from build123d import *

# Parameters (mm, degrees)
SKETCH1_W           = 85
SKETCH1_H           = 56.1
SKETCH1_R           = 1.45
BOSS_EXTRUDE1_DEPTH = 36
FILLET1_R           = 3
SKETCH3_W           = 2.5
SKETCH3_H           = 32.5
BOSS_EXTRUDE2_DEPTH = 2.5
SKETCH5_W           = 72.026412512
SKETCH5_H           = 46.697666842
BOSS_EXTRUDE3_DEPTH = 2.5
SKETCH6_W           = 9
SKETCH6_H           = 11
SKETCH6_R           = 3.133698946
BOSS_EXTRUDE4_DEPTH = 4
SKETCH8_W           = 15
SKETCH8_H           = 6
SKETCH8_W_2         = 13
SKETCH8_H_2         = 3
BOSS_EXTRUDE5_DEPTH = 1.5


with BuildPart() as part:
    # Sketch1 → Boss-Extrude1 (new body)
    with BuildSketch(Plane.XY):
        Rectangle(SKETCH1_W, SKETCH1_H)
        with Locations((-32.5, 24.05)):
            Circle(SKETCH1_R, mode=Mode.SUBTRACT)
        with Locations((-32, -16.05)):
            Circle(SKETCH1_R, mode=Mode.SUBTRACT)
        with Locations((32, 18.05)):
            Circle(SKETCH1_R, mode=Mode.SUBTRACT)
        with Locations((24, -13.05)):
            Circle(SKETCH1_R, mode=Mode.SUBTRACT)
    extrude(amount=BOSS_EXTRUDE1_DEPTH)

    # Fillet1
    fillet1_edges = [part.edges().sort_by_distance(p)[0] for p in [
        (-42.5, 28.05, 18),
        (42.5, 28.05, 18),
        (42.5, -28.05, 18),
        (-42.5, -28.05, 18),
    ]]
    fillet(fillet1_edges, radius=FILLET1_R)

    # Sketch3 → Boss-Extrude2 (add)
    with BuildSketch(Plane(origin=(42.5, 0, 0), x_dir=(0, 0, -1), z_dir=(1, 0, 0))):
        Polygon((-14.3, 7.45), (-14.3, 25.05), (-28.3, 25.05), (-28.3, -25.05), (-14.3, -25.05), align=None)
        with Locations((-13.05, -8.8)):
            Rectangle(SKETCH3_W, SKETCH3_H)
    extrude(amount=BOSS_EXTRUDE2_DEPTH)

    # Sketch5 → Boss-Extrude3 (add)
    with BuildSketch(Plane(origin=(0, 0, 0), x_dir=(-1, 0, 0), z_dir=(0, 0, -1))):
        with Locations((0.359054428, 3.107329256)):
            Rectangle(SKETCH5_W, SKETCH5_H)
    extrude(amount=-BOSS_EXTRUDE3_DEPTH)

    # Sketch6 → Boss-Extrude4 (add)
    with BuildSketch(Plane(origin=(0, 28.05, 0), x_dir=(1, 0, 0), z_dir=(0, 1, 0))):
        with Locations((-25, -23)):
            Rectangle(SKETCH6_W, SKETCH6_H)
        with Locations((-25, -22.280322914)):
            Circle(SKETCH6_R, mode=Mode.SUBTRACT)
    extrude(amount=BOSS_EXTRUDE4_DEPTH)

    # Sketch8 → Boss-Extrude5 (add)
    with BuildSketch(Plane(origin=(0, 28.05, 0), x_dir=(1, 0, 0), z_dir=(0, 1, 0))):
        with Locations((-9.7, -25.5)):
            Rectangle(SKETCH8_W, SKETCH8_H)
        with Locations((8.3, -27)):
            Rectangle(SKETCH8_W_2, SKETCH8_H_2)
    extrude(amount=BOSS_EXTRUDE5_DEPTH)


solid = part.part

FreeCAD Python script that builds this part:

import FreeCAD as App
import Part
import Sketcher
from FreeCAD import Vector
Q = App.Units.Quantity


def edges_at(feature, points):
    """Names of the edges that pass closest to the given points."""
    edges = feature.Shape.Edges
    near = lambda p: min(range(len(edges)), key=lambda i: edges[i].distToShape(Part.Vertex(*p))[0])
    return sorted({f"Edge{near(p) + 1}" for p in points})

doc = App.newDocument("Part")
body = doc.addObject("PartDesign::Body", "Body")

# Sketch on XY plane
sketch1 = body.newObject("Sketcher::SketchObject", "Sketch")
sketch1.AttachmentSupport = (doc.getObject("XY_Plane"), [""])
sketch1.MapMode = "FlatFace"
sketch1.addGeometry([
    Part.LineSegment(Vector(-42.5, 28.05, 0), Vector(-42.5, -28.05, 0)),  # 0
    Part.LineSegment(Vector(-42.5, -28.05, 0), Vector(42.5, -28.05, 0)),  # 1
    Part.LineSegment(Vector(42.5, -28.05, 0), Vector(42.5, 28.05, 0)),  # 2
    Part.LineSegment(Vector(42.5, 28.05, 0), Vector(-42.5, 28.05, 0)),  # 3
    Part.Circle(Vector(-32, -16.05, 0), Vector(0, 0, 1), 1.45),  # 4
    Part.Circle(Vector(24, -13.05, 0), Vector(0, 0, 1), 1.45),  # 5
    Part.Circle(Vector(-32.5, 24.05, 0), Vector(0, 0, 1), 1.45),  # 6
    Part.Circle(Vector(32, 18.05, 0), Vector(0, 0, 1), 1.45),  # 7
], False)
sketch1.addConstraint([
    Sketcher.Constraint("Coincident", 0, 2, 1, 1),
    Sketcher.Constraint("Coincident", 1, 2, 2, 1),
    Sketcher.Constraint("Coincident", 2, 2, 3, 1),
    Sketcher.Constraint("Coincident", 3, 2, 0, 1),
    Sketcher.Constraint("Vertical", 0),
    Sketcher.Constraint("Horizontal", 1),
    Sketcher.Constraint("Vertical", 2),
    Sketcher.Constraint("Horizontal", 3),
    Sketcher.Constraint("Equal", 4, 5),
    Sketcher.Constraint("Equal", 5, 6),
    Sketcher.Constraint("Equal", 6, 7),
    Sketcher.Constraint("Symmetric", 0, 2, 2, 2, -1, 1),
    Sketcher.Constraint("Diameter", 4, Q("2.9 mm")),
    Sketcher.Constraint("DistanceX", 1, 1, 1, 2, Q("85 mm")),
    Sketcher.Constraint("DistanceY", 0, 2, 0, 1, Q("56.1 mm")),
    Sketcher.Constraint("DistanceX", 4, 3, -1, 1, Q("32 mm")),
    Sketcher.Constraint("DistanceX", -1, 1, 5, 3, Q("24 mm")),
    Sketcher.Constraint("DistanceX", -1, 1, 7, 3, Q("32 mm")),
    Sketcher.Constraint("DistanceY", 4, 3, 5, 3, Q("3 mm")),
    Sketcher.Constraint("DistanceY", 7, 3, 6, 3, Q("6 mm")),
    Sketcher.Constraint("DistanceY", 0, 2, 4, 3, Q("12 mm")),
    Sketcher.Constraint("DistanceX", 0, 2, 6, 3, Q("10 mm")),
    Sketcher.Constraint("DistanceY", 7, 3, 2, 2, Q("10 mm")),
])
pad1 = body.newObject("PartDesign::Pad", "Pad")
pad1.Profile = sketch1
pad1.Length = 36
doc.recompute()

fillet = body.newObject("PartDesign::Fillet", "Fillet")
fillet.Base = (pad1, edges_at(pad1, [
    (-42.5, 28.05, 18),
    (42.5, 28.05, 18),
    (42.5, -28.05, 18),
    (-42.5, -28.05, 18),
]))
fillet.Radius = 3

# Sketch on YZ plane
sketch2 = body.newObject("Sketcher::SketchObject", "Sketch001")
sketch2.AttachmentSupport = (doc.getObject("YZ_Plane"), [""])
sketch2.MapMode = "FlatFace"
sketch2.AttachmentOffset = App.Placement(Vector(0, 0, 42.5), App.Rotation())
sketch2.addGeometry([
    Part.LineSegment(Vector(25.05, 14.3, 0), Vector(25.05, 28.3, 0)),  # 0
    Part.LineSegment(Vector(25.05, 28.3, 0), Vector(-25.05, 28.3, 0)),  # 1
    Part.LineSegment(Vector(-25.05, 28.3, 0), Vector(-25.05, 11.8, 0)),  # 2
    Part.LineSegment(Vector(-25.05, 11.8, 0), Vector(7.45, 11.8, 0)),  # 3
    Part.LineSegment(Vector(7.45, 11.8, 0), Vector(7.45, 14.3, 0)),  # 4
    Part.LineSegment(Vector(7.45, 14.3, 0), Vector(25.05, 14.3, 0)),  # 5
], False)
sketch2.addConstraint([
    Sketcher.Constraint("Coincident", 0, 2, 1, 1),
    Sketcher.Constraint("Coincident", 1, 2, 2, 1),
    Sketcher.Constraint("Coincident", 2, 2, 3, 1),
    Sketcher.Constraint("Coincident", 3, 2, 4, 1),
    Sketcher.Constraint("Coincident", 4, 2, 5, 1),
    Sketcher.Constraint("Coincident", 5, 2, 0, 1),
    Sketcher.Constraint("Vertical", 0),
    Sketcher.Constraint("Horizontal", 1),
    Sketcher.Constraint("Vertical", 2),
    Sketcher.Constraint("Horizontal", 3),
    Sketcher.Constraint("Vertical", 4),
    Sketcher.Constraint("Horizontal", 5),
    Sketcher.Constraint("DistanceY", 0, 1, 0, 2, Q("14 mm")),
    Sketcher.Constraint("DistanceX", 1, 2, 1, 1, Q("50.1 mm")),
    Sketcher.Constraint("DistanceX", 3, 1, 3, 2, Q("32.5 mm")),
    Sketcher.Constraint("DistanceY", 2, 2, 2, 1, Q("16.5 mm")),
    Sketcher.Constraint("DistanceY", -1, 1, 0, 2, Q("28.3 mm")),
    Sketcher.Constraint("DistanceX", -1, 1, 0, 2, Q("25.05 mm")),
])
pad2 = body.newObject("PartDesign::Pad", "Pad001")
pad2.Profile = sketch2
pad2.Length = 2.5

# Sketch on XY plane
sketch3 = body.newObject("Sketcher::SketchObject", "Sketch002")
sketch3.AttachmentSupport = (doc.getObject("XY_Plane"), [""])
sketch3.MapMode = "FlatFace"
sketch3.addGeometry([
    Part.LineSegment(Vector(35.654152, 26.456163, 0), Vector(35.654152, -20.241504, 0)),
    Part.LineSegment(Vector(35.654152, -20.241504, 0), Vector(-36.372261, -20.241504, 0)),
    Part.LineSegment(Vector(-36.372261, -20.241504, 0), Vector(-36.372261, 26.456163, 0)),
    Part.LineSegment(Vector(-36.372261, 26.456163, 0), Vector(35.654152, 26.456163, 0)),
], False)
sketch3.addConstraint([
    Sketcher.Constraint("Coincident", 0, 2, 1, 1),
    Sketcher.Constraint("Coincident", 1, 2, 2, 1),
    Sketcher.Constraint("Coincident", 2, 2, 3, 1),
    Sketcher.Constraint("Coincident", 3, 2, 0, 1),
    Sketcher.Constraint("Vertical", 0),
    Sketcher.Constraint("Horizontal", 1),
    Sketcher.Constraint("Vertical", 2),
    Sketcher.Constraint("Horizontal", 3),
    Sketcher.Constraint("DistanceX", 1, 2, 1, 1, Q("72.026413 mm")),
    Sketcher.Constraint("DistanceY", 0, 2, 0, 1, Q("46.697667 mm")),
    Sketcher.Constraint("DistanceX", -1, 1, 0, 2, Q("35.654152 mm")),
    Sketcher.Constraint("DistanceY", 0, 2, -1, 1, Q("20.241504 mm")),
])
pad3 = body.newObject("PartDesign::Pad", "Pad002")
pad3.Profile = sketch3
pad3.Length = 2.5

# Sketch on XZ plane
sketch4 = body.newObject("Sketcher::SketchObject", "Sketch003")
sketch4.AttachmentSupport = (doc.getObject("XZ_Plane"), [""])
sketch4.MapMode = "FlatFace"
sketch4.AttachmentOffset = App.Placement(Vector(0, 0, -28.05), App.Rotation())
sketch4.addGeometry([
    Part.LineSegment(Vector(-29.5, 17.5, 0), Vector(-29.5, 28.5, 0)),  # 0
    Part.LineSegment(Vector(-29.5, 28.5, 0), Vector(-20.5, 28.5, 0)),  # 1
    Part.LineSegment(Vector(-20.5, 28.5, 0), Vector(-20.5, 17.5, 0)),  # 2
    Part.LineSegment(Vector(-20.5, 17.5, 0), Vector(-29.5, 17.5, 0)),  # 3
    Part.Circle(Vector(-25, 22.280323, 0), Vector(0, 0, 1), 3.133699),  # 4
], False)
sketch4.addConstraint([
    Sketcher.Constraint("Coincident", 0, 2, 1, 1),
    Sketcher.Constraint("Coincident", 1, 2, 2, 1),
    Sketcher.Constraint("Coincident", 2, 2, 3, 1),
    Sketcher.Constraint("Coincident", 3, 2, 0, 1),
    Sketcher.Constraint("Vertical", 0),
    Sketcher.Constraint("Horizontal", 1),
    Sketcher.Constraint("Vertical", 2),
    Sketcher.Constraint("Horizontal", 3),
    Sketcher.Constraint("DistanceX", 1, 1, 1, 2, Q("9 mm")),
    Sketcher.Constraint("DistanceY", 0, 1, 0, 2, Q("11 mm")),
    Sketcher.Constraint("DistanceX", 4, 3, -1, 1, Q("25 mm")),
    Sketcher.Constraint("DistanceX", 0, 2, -1, 1, Q("29.5 mm")),
    Sketcher.Constraint("DistanceY", -1, 1, 0, 2, Q("28.5 mm")),
    Sketcher.Constraint("Diameter", 4, Q("6.267398 mm")),
    Sketcher.Constraint("DistanceY", -1, 1, 4, 3, Q("22.280323 mm")),
])
pad4 = body.newObject("PartDesign::Pad", "Pad003")
pad4.Profile = sketch4
pad4.Length = 4
pad4.Reversed = True

# Sketch on XZ plane
sketch5 = body.newObject("Sketcher::SketchObject", "Sketch004")
sketch5.AttachmentSupport = (doc.getObject("XZ_Plane"), [""])
sketch5.MapMode = "FlatFace"
sketch5.AttachmentOffset = App.Placement(Vector(0, 0, -28.05), App.Rotation())
sketch5.addGeometry([
    Part.LineSegment(Vector(-17.2, 22.5, 0), Vector(-17.2, 28.5, 0)),  # 0
    Part.LineSegment(Vector(-17.2, 28.5, 0), Vector(-2.2, 28.5, 0)),  # 1
    Part.LineSegment(Vector(-2.2, 28.5, 0), Vector(-2.2, 22.5, 0)),  # 2
    Part.LineSegment(Vector(-2.2, 22.5, 0), Vector(-17.2, 22.5, 0)),  # 3
    Part.LineSegment(Vector(1.8, 25.5, 0), Vector(1.8, 28.5, 0)),  # 4
    Part.LineSegment(Vector(1.8, 28.5, 0), Vector(14.8, 28.5, 0)),  # 5
    Part.LineSegment(Vector(14.8, 28.5, 0), Vector(14.8, 25.5, 0)),  # 6
    Part.LineSegment(Vector(14.8, 25.5, 0), Vector(1.8, 25.5, 0)),  # 7
], False)
sketch5.addConstraint([
    Sketcher.Constraint("Coincident", 0, 2, 1, 1),
    Sketcher.Constraint("Coincident", 1, 2, 2, 1),
    Sketcher.Constraint("Coincident", 2, 2, 3, 1),
    Sketcher.Constraint("Coincident", 3, 2, 0, 1),
    Sketcher.Constraint("Coincident", 4, 2, 5, 1),
    Sketcher.Constraint("Coincident", 5, 2, 6, 1),
    Sketcher.Constraint("Coincident", 6, 2, 7, 1),
    Sketcher.Constraint("Coincident", 7, 2, 4, 1),
    Sketcher.Constraint("Vertical", 0),
    Sketcher.Constraint("Horizontal", 1),
    Sketcher.Constraint("Vertical", 2),
    Sketcher.Constraint("Horizontal", 3),
    Sketcher.Constraint("Vertical", 4),
    Sketcher.Constraint("Horizontal", 5),
    Sketcher.Constraint("Vertical", 6),
    Sketcher.Constraint("Horizontal", 7),
    Sketcher.Constraint("Horizontal", 1, 2, 4, 2),
    Sketcher.Constraint("DistanceX", 1, 1, 1, 2, Q("15 mm")),
    Sketcher.Constraint("DistanceX", 5, 1, 5, 2, Q("13 mm")),
    Sketcher.Constraint("DistanceY", 0, 1, 0, 2, Q("6 mm")),
    Sketcher.Constraint("DistanceY", 4, 1, 4, 2, Q("3 mm")),
    Sketcher.Constraint("DistanceX", 1, 2, 4, 2, Q("4 mm")),
    Sketcher.Constraint("DistanceX", 0, 2, -1, 1, Q("17.2 mm")),
    Sketcher.Constraint("DistanceY", -1, 1, 0, 2, Q("28.5 mm")),
])
pad5 = body.newObject("PartDesign::Pad", "Pad004")
pad5.Profile = sketch5
pad5.Length = 1.5
pad5.Reversed = True

doc.recompute()
